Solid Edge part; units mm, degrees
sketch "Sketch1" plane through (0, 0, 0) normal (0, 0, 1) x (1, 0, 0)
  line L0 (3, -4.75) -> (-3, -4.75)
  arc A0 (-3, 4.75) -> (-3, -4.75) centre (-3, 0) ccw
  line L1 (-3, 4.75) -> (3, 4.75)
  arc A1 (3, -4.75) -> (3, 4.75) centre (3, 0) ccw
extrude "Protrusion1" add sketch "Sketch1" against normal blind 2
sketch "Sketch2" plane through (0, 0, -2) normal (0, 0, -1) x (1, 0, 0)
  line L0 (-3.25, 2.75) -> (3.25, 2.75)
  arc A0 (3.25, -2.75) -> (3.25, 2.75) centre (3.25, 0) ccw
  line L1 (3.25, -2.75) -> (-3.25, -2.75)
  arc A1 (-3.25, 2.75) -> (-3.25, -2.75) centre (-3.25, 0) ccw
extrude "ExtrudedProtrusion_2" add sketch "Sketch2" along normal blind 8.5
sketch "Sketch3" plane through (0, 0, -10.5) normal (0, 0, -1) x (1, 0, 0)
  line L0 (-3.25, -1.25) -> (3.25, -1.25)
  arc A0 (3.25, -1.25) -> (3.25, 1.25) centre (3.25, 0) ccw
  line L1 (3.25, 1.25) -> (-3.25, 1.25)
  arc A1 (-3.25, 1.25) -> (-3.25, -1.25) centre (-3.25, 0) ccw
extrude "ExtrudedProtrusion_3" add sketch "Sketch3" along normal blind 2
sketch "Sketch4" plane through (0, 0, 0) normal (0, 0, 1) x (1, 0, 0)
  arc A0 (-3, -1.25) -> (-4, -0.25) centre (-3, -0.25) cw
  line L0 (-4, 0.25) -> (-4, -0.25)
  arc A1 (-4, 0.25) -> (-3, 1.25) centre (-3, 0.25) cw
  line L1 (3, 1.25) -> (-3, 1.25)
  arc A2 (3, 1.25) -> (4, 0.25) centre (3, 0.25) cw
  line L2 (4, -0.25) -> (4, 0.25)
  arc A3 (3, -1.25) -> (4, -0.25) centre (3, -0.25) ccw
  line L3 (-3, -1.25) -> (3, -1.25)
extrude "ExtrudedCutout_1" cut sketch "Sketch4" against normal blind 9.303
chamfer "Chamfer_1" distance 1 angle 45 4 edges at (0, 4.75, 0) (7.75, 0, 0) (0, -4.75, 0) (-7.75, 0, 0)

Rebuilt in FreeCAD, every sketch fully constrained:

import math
import FreeCAD as App
import Part
import Sketcher


def edges_at(feature, points):
    """Names of the edges that pass closest to the given points."""
    edges = feature.Shape.Edges
    near = lambda p: min(range(len(edges)), key=lambda i: edges[i].distToShape(Part.Vertex(*p))[0])
    return sorted({f"Edge{near(p) + 1}" for p in points})

doc = App.newDocument("Part")
params = doc.addObject("Spreadsheet::Sheet", "Params")
for row, (alias, value) in enumerate([
    ("sketch1_width", "6 mm"),
    ("sketch1_radius", "4.75 mm"),
    ("pad1_length", "2 mm"),
    ("sketch2_radius", "2.75 mm"),
    ("sketch2_width", "6.5 mm"),
    ("pad2_length", "8.5 mm"),
    ("sketch3_radius", "1.25 mm"),
    ("sketch3_width", "6.5 mm"),
    ("pad3_length", "2 mm"),
    ("sketch4_radius", "1 mm"),
    ("sketch4_width", "6 mm"),
    ("sketch4_height", "0.5 mm"),
    ("pocket1_length", "9.303 mm"),
    ("chamfer_size", "1 mm"),
], start=1):
    params.set(f"A{row}", alias)
    params.set(f"B{row}", "=" + value)
    params.setAlias(f"B{row}", alias)

body = doc.addObject("PartDesign::Body", "Body")

# Sketch on XY plane
sketch1 = doc.addObject("Sketcher::SketchObject", "Sketch")
body.addObject(sketch1)
sketch1.AttachmentSupport = (doc.XY_Plane, [""])
sketch1.MapMode = "FlatFace"
sketch1.addGeometry([
    Part.LineSegment(App.Vector(-3, -4.75, 0), App.Vector(3, -4.75, 0)),
    Part.ArcOfCircle(Part.Circle(App.Vector(3, 0, 0), App.Vector(0, 0, 1), 4.75), math.radians(-90), math.radians(90)),
    Part.LineSegment(App.Vector(3, 4.75, 0), App.Vector(-3, 4.75, 0)),
    Part.ArcOfCircle(Part.Circle(App.Vector(-3, 0, 0), App.Vector(0, 0, 1), 4.75), math.radians(90), math.radians(270)),
], False)
sketch1.addConstraint([
    Sketcher.Constraint("Tangent", 0, 2, 1, 1),
    Sketcher.Constraint("Tangent", 1, 2, 2, 1),
    Sketcher.Constraint("Tangent", 2, 2, 3, 1),
    Sketcher.Constraint("Tangent", 3, 2, 0, 1),
    Sketcher.Constraint("Horizontal", 0),
    Sketcher.Constraint("Horizontal", 2),
    Sketcher.Constraint("Symmetric", 1, 3, 3, 3, -1, 1),
    Sketcher.Constraint("DistanceX", 0, 1, 0, 2, 6.0),
    Sketcher.Constraint("Radius", 1, 4.75),
])
sketch1.setExpression("Constraints[7]", "Params.sketch1_width")
sketch1.setExpression("Constraints[8]", "Params.sketch1_radius")
pad1 = doc.addObject("PartDesign::Pad", "Pad")
body.addObject(pad1)
pad1.Profile = sketch1
pad1.setExpression("Length", "Params.pad1_length")
pad1.Reversed = True

# Sketch on XY plane
sketch2 = doc.addObject("Sketcher::SketchObject", "Sketch001")
body.addObject(sketch2)
sketch2.AttachmentSupport = (doc.XY_Plane, [""])
sketch2.MapMode = "FlatFace"
sketch2.AttachmentOffset = App.Placement(App.Vector(0, 0, -2), App.Rotation())
sketch2.addGeometry([
    Part.LineSegment(App.Vector(3.25, -2.75, 0), App.Vector(-3.25, -2.75, 0)),
    Part.ArcOfCircle(Part.Circle(App.Vector(-3.25, 0, 0), App.Vector(0, 0, 1), 2.75), math.radians(90), math.radians(270)),
    Part.LineSegment(App.Vector(-3.25, 2.75, 0), App.Vector(3.25, 2.75, 0)),
    Part.ArcOfCircle(Part.Circle(App.Vector(3.25, 0, 0), App.Vector(0, 0, 1), 2.75), math.radians(-90), math.radians(90)),
], False)
sketch2.addConstraint([
    Sketcher.Constraint("Tangent", 0, 2, 1, 2),
    Sketcher.Constraint("Tangent", 1, 1, 2, 1),
    Sketcher.Constraint("Tangent", 2, 2, 3, 2),
    Sketcher.Constraint("Tangent", 3, 1, 0, 1),
    Sketcher.Constraint("Horizontal", 0),
    Sketcher.Constraint("Horizontal", 2),
    Sketcher.Constraint("Symmetric", 1, 3, 3, 3, -1, 1),
    Sketcher.Constraint("Radius", 1, 2.75),
    Sketcher.Constraint("DistanceX", 0, 2, 0, 1, 6.5),
])
sketch2.setExpression("Constraints[7]", "Params.sketch2_radius")
sketch2.setExpression("Constraints[8]", "Params.sketch2_width")
pad2 = doc.addObject("PartDesign::Pad", "Pad001")
body.addObject(pad2)
pad2.Profile = sketch2
pad2.setExpression("Length", "Params.pad2_length")
pad2.Reversed = True

# Sketch on XY plane
sketch3 = doc.addObject("Sketcher::SketchObject", "Sketch002")
body.addObject(sketch3)
sketch3.AttachmentSupport = (doc.XY_Plane, [""])
sketch3.MapMode = "FlatFace"
sketch3.AttachmentOffset = App.Placement(App.Vector(0, 0, -10.5), App.Rotation())
sketch3.addGeometry([
    Part.ArcOfCircle(Part.Circle(App.Vector(-3.25, 0, 0), App.Vector(0, 0, 1), 1.25), math.radians(90), math.radians(270)),
    Part.LineSegment(App.Vector(-3.25, 1.25, 0), App.Vector(3.25, 1.25, 0)),
    Part.ArcOfCircle(Part.Circle(App.Vector(3.25, 0, 0), App.Vector(0, 0, 1), 1.25), math.radians(-90), math.radians(90)),
    Part.LineSegment(App.Vector(3.25, -1.25, 0), App.Vector(-3.25, -1.25, 0)),
], False)
sketch3.addConstraint([
    Sketcher.Constraint("Tangent", 0, 1, 1, 1),
    Sketcher.Constraint("Tangent", 1, 2, 2, 2),
    Sketcher.Constraint("Tangent", 2, 1, 3, 1),
    Sketcher.Constraint("Tangent", 3, 2, 0, 2),
    Sketcher.Constraint("Horizontal", 1),
    Sketcher.Constraint("Horizontal", 3),
    Sketcher.Constraint("Symmetric", 0, 3, 2, 3, -1, 1),
    Sketcher.Constraint("Radius", 0, 1.25),
    Sketcher.Constraint("DistanceX", 1, 1, 1, 2, 6.5),
])
sketch3.setExpression("Constraints[7]", "Params.sketch3_radius")
sketch3.setExpression("Constraints[8]", "Params.sketch3_width")
pad3 = doc.addObject("PartDesign::Pad", "Pad002")
body.addObject(pad3)
pad3.Profile = sketch3
pad3.setExpression("Length", "Params.pad3_length")
pad3.Reversed = True

# Sketch on XY plane
sketch4 = doc.addObject("Sketcher::SketchObject", "Sketch003")
body.addObject(sketch4)
sketch4.AttachmentSupport = (doc.XY_Plane, [""])
sketch4.MapMode = "FlatFace"
sketch4.addGeometry([
    Part.ArcOfCircle(Part.Circle(App.Vector(-3, -0.25, 0), App.Vector(0, 0, 1), 1), math.radians(180), math.radians(270)),  # 0
    Part.LineSegment(App.Vector(-3, -1.25, 0), App.Vector(3, -1.25, 0)),  # 1
    Part.ArcOfCircle(Part.Circle(App.Vector(3, -0.25, 0), App.Vector(0, 0, 1), 1), math.radians(-90), math.radians(0)),  # 2
    Part.LineSegment(App.Vector(4, -0.25, 0), App.Vector(4, 0.25, 0)),  # 3
    Part.ArcOfCircle(Part.Circle(App.Vector(3, 0.25, 0), App.Vector(0, 0, 1), 1), math.radians(0), math.radians(90)),  # 4
    Part.LineSegment(App.Vector(3, 1.25, 0), App.Vector(-3, 1.25, 0)),  # 5
    Part.ArcOfCircle(Part.Circle(App.Vector(-3, 0.25, 0), App.Vector(0, 0, 1), 1), math.radians(90), math.radians(180)),  # 6
    Part.LineSegment(App.Vector(-4, 0.25, 0), App.Vector(-4, -0.25, 0)),  # 7
], False)
sketch4.addConstraint([
    Sketcher.Constraint("Tangent", 0, 2, 1, 1),
    Sketcher.Constraint("Tangent", 1, 2, 2, 1),
    Sketcher.Constraint("Tangent", 2, 2, 3, 1),
    Sketcher.Constraint("Tangent", 3, 2, 4, 1),
    Sketcher.Constraint("Tangent", 4, 2, 5, 1),
    Sketcher.Constraint("Tangent", 5, 2, 6, 1),
    Sketcher.Constraint("Tangent", 6, 2, 7, 1),
    Sketcher.Constraint("Tangent", 7, 2, 0, 1),
    Sketcher.Constraint("Horizontal", 1),
    Sketcher.Constraint("Vertical", 3),
    Sketcher.Constraint("Horizontal", 5),
    Sketcher.Constraint("Vertical", 7),
    Sketcher.Constraint("Equal", 0, 2),
    Sketcher.Constraint("Equal", 2, 4),
    Sketcher.Constraint("Equal", 4, 6),
    Sketcher.Constraint("Symmetric", 0, 3, 4, 3, -1, 1),
    Sketcher.Constraint("Radius", 0, 1.0),
    Sketcher.Constraint("DistanceX", 1, 1, 1, 2, 6.0),
    Sketcher.Constraint("DistanceY", 3, 1, 3, 2, 0.5),
])
sketch4.setExpression("Constraints[16]", "Params.sketch4_radius")
sketch4.setExpression("Constraints[17]", "Params.sketch4_width")
sketch4.setExpression("Constraints[18]", "Params.sketch4_height")
pocket1 = doc.addObject("PartDesign::Pocket", "Pocket")
body.addObject(pocket1)
pocket1.Profile = sketch4
pocket1.setExpression("Length", "Params.pocket1_length")
doc.recompute()

chamfer = doc.addObject("PartDesign::Chamfer", "Chamfer")
body.addObject(chamfer)
chamfer.Base = (pocket1, edges_at(pocket1, [
    (0, 4.75, 0),
    (7.75, 0, 0),
    (0, -4.75, 0),
    (-7.75, 0, 0),
]))
chamfer.setExpression("Size", "Params.chamfer_size")

doc.recompute()
